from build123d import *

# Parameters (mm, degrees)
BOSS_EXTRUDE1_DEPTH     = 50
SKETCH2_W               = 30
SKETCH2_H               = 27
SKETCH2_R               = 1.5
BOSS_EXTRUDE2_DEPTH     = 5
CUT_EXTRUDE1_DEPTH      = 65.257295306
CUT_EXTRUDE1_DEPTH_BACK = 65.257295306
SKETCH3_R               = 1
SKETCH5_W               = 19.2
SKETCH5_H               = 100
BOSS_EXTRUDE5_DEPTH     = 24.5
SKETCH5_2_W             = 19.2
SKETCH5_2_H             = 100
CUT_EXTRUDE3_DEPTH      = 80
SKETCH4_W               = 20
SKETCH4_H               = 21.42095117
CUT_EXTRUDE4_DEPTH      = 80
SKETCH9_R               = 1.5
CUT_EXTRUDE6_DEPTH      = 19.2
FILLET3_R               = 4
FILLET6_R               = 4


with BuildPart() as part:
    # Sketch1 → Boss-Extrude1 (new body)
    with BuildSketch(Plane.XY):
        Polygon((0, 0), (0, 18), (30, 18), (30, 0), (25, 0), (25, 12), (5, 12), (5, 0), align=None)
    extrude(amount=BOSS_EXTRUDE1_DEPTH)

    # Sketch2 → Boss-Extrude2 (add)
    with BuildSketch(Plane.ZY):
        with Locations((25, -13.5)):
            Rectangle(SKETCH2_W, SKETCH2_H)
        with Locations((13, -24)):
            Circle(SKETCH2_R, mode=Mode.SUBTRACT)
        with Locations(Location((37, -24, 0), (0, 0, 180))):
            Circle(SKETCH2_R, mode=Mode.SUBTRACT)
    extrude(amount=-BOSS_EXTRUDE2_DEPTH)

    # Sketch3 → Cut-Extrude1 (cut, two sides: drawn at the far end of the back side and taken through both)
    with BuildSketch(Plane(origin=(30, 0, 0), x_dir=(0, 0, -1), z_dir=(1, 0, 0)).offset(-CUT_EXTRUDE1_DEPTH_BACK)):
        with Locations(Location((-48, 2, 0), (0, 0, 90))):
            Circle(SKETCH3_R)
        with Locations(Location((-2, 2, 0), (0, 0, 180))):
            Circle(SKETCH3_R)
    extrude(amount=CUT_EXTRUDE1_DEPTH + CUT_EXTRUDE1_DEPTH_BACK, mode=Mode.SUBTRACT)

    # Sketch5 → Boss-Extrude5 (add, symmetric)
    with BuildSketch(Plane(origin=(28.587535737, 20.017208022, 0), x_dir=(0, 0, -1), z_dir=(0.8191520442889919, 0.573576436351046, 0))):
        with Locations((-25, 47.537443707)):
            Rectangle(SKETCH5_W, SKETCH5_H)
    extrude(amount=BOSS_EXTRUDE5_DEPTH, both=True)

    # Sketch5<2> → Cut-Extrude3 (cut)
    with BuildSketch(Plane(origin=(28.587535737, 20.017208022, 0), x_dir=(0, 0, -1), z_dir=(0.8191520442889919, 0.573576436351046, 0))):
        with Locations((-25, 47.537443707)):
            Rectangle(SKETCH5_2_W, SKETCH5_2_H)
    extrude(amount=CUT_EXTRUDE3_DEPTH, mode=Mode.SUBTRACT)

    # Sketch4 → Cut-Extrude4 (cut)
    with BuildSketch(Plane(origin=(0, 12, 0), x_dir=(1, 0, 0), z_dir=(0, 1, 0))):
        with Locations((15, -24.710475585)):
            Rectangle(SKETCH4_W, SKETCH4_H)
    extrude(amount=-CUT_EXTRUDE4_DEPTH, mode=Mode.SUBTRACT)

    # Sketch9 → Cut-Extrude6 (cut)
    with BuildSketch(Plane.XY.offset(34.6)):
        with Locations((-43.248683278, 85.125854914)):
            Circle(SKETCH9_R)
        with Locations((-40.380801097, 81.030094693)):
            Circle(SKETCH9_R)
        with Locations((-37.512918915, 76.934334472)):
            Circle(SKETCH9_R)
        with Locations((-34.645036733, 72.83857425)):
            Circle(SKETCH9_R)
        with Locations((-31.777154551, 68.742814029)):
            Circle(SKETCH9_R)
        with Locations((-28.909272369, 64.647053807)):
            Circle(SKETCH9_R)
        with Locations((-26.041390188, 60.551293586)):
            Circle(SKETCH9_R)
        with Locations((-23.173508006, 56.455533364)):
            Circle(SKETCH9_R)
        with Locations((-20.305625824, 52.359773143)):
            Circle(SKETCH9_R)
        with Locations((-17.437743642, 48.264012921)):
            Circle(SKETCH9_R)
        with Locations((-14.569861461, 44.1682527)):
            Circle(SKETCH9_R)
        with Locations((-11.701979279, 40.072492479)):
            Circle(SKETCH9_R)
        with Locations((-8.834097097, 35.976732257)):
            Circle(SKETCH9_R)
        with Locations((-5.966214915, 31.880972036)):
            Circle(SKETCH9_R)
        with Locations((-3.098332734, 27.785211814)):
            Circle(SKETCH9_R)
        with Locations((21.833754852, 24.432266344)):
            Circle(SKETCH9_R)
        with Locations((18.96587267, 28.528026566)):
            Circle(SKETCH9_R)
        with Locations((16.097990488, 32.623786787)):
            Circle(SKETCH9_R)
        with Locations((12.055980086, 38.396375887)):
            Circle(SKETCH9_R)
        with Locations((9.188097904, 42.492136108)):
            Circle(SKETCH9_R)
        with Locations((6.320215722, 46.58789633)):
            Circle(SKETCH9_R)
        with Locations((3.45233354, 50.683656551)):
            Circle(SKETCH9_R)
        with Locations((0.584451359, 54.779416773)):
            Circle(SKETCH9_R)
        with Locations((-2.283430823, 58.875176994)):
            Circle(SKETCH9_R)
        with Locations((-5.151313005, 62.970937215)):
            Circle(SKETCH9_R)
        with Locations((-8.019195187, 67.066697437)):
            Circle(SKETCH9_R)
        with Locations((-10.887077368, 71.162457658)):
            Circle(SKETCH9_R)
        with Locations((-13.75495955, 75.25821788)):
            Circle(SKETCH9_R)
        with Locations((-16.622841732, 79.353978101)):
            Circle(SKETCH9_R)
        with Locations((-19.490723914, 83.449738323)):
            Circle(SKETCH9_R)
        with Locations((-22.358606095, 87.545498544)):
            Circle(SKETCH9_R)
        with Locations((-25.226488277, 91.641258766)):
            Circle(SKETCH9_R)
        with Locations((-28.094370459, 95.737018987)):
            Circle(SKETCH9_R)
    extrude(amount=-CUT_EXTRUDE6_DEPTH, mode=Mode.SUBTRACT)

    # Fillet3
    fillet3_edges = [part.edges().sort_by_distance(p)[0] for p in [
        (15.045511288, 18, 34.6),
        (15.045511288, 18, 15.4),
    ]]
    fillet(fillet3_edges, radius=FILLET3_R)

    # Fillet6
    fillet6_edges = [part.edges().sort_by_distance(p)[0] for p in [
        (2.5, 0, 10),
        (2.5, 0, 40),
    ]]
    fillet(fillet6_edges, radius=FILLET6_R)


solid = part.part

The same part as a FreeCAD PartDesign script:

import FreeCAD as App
import Part
import Sketcher


def edges_at(feature, points):
    """Names of the edges that pass closest to the given points."""
    edges = feature.Shape.Edges
    near = lambda p: min(range(len(edges)), key=lambda i: edges[i].distToShape(Part.Vertex(*p))[0])
    return sorted({f"Edge{near(p) + 1}" for p in points})


def add_polygon(sketch, points):
    """Adds a closed chain of lines whose ends are joined by coincident constraints."""
    first, n = sketch.GeometryCount, len(points)
    for a, b in zip(points, points[1:] + points[:1]):
        sketch.addGeometry(Part.LineSegment(App.Vector(*a, 0), App.Vector(*b, 0)), False)
    for i in range(n):
        sketch.addConstraint(Sketcher.Constraint("Coincident", first + i, 2, first + (i + 1) % n, 1))

doc = App.newDocument("Part")
body = doc.addObject("PartDesign::Body", "Body")

# Sketch on XY plane
sketch1 = body.newObject("Sketcher::SketchObject", "Sketch")
sketch1.AttachmentSupport = (doc.getObject("XY_Plane"), [""])
sketch1.MapMode = "FlatFace"
add_polygon(sketch1, [(0, 18), (0, 0), (5, 0), (5, 12), (25, 12), (25, 0), (30, 0), (30, 18)])  # lines 0-7
sketch1.addConstraint(Sketcher.Constraint("Vertical", 0))
sketch1.addConstraint(Sketcher.Constraint("Horizontal", 1))
sketch1.addConstraint(Sketcher.Constraint("Vertical", 2))
sketch1.addConstraint(Sketcher.Constraint("Horizontal", 3))
sketch1.addConstraint(Sketcher.Constraint("Vertical", 4))
sketch1.addConstraint(Sketcher.Constraint("Horizontal", 5))
sketch1.addConstraint(Sketcher.Constraint("Vertical", 6))
sketch1.addConstraint(Sketcher.Constraint("Horizontal", 7))
sketch1.addConstraint(Sketcher.Constraint("Coincident", 0, 2, -1, 1))
sketch1.addConstraint(Sketcher.Constraint("PointOnObject", 4, 2, -1))
sketch1.addConstraint(Sketcher.Constraint("Equal", 1, 5))
sketch1.addConstraint(Sketcher.Constraint("DistanceX", 1, 1, 1, 2, 5.0))
sketch1.addConstraint(Sketcher.Constraint("DistanceX", 3, 1, 3, 2, 20.0))
sketch1.addConstraint(Sketcher.Constraint("DistanceY", 0, 2, 0, 1, 18.0))
sketch1.addConstraint(Sketcher.Constraint("DistanceY", 2, 1, 2, 2, 12.0))
pad1 = body.newObject("PartDesign::Pad", "Pad")
pad1.Profile = sketch1
pad1.Length = 50

# Sketch on YZ plane
sketch2 = body.newObject("Sketcher::SketchObject", "Sketch001")
sketch2.AttachmentSupport = (doc.getObject("YZ_Plane"), [""])
sketch2.MapMode = "FlatFace"
add_polygon(sketch2, [(0, 10), (-27, 10), (-27, 40), (0, 40)])  # lines 0-3
sketch2.addGeometry(Part.Circle(App.Vector(-24, 13, 0), App.Vector(0, 0, 1), 1.5), False)  # 4
sketch2.addGeometry(Part.Circle(App.Vector(-24, 37, 0), App.Vector(0, 0, 1), 1.5), False)  # 5
sketch2.addConstraint(Sketcher.Constraint("Horizontal", 0))
sketch2.addConstraint(Sketcher.Constraint("Vertical", 1))
sketch2.addConstraint(Sketcher.Constraint("Horizontal", 2))
sketch2.addConstraint(Sketcher.Constraint("Vertical", 3))
sketch2.addConstraint(Sketcher.Constraint("Equal", 4, 5))
sketch2.addConstraint(Sketcher.Constraint("PointOnObject", 2, 2, -2))
sketch2.addConstraint(Sketcher.Constraint("Vertical", 4, 3, 5, 3))
sketch2.addConstraint(Sketcher.Constraint("Diameter", 4, 3.0))
sketch2.addConstraint(Sketcher.Constraint("DistanceX", 0, 2, 0, 1, 27.0))
sketch2.addConstraint(Sketcher.Constraint("DistanceY", 1, 1, 1, 2, 30.0))
sketch2.addConstraint(Sketcher.Constraint("DistanceX", 4, 3, -1, 1, 24.0))
sketch2.addConstraint(Sketcher.Constraint("DistanceY", -1, 1, 4, 3, 13.0))
sketch2.addConstraint(Sketcher.Constraint("DistanceY", -1, 1, 5, 3, 37.0))
sketch2.addConstraint(Sketcher.Constraint("DistanceY", -1, 1, 0, 2, 10.0))
pad2 = body.newObject("PartDesign::Pad", "Pad001")
pad2.Profile = sketch2
pad2.Length = 5

# Sketch on YZ plane
sketch3 = body.newObject("Sketcher::SketchObject", "Sketch002")
sketch3.AttachmentSupport = (doc.getObject("YZ_Plane"), [""])
sketch3.MapMode = "FlatFace"
sketch3.AttachmentOffset = App.Placement(App.Vector(0, 0, 30), App.Rotation())
sketch3.addGeometry(Part.Circle(App.Vector(2, 48, 0), App.Vector(0, 0, 1), 1), False)
sketch3.addGeometry(Part.Circle(App.Vector(2, 2, 0), App.Vector(0, 0, 1), 1), False)
sketch3.addConstraint(Sketcher.Constraint("Equal", 0, 1))
sketch3.addConstraint(Sketcher.Constraint("Vertical", 0, 3, 1, 3))
sketch3.addConstraint(Sketcher.Constraint("Diameter", 0, 2.0))
sketch3.addConstraint(Sketcher.Constraint("DistanceX", -1, 1, 0, 3, 2.0))
sketch3.addConstraint(Sketcher.Constraint("DistanceY", -1, 1, 0, 3, 48.0))
sketch3.addConstraint(Sketcher.Constraint("DistanceY", -1, 1, 1, 3, 2.0))
pocket1 = body.newObject("PartDesign::Pocket", "Pocket")
pocket1.Profile = sketch3
pocket1.Type = "ThroughAll"
pocket1.Midplane = True

# Sketch on an angled plane
sketch4 = body.newObject("Sketcher::SketchObject", "Sketch003")
sketch4.Placement = App.Placement(App.Vector(28.587536, 20.017208, 0), App.Rotation(App.Vector(0, 0, -1), App.Vector(-0.573576436, 0.819152044, 0), App.Vector(0.819152044, 0.573576436, 0), "ZXY"))
add_polygon(sketch4, [(-35, 98), (-35, -2), (-15, -2), (-15, 98)])  # lines 0-3
sketch4.addConstraint(Sketcher.Constraint("Vertical", 0))
sketch4.addConstraint(Sketcher.Constraint("Horizontal", 1))
sketch4.addConstraint(Sketcher.Constraint("Vertical", 2))
sketch4.addConstraint(Sketcher.Constraint("Horizontal", 3))
sketch4.addConstraint(Sketcher.Constraint("DistanceY", 0, 2, 0, 1, 100.0))
sketch4.addConstraint(Sketcher.Constraint("DistanceX", 1, 1, 1, 2, 19.2))
sketch4.addConstraint(Sketcher.Constraint("DistanceX", 0, 2, -1, 1, 34.6))
sketch4.addConstraint(Sketcher.Constraint("DistanceY", 0, 2, -1, 1, 2.462556))
pad3 = body.newObject("PartDesign::Pad", "Pad002")
pad3.Profile = sketch4
pad3.Length = 49
pad3.Midplane = True

# Sketch on an angled plane
sketch5 = body.newObject("Sketcher::SketchObject", "Sketch004")
sketch5.Placement = App.Placement(App.Vector(28.587536, 20.017208, 0), App.Rotation(App.Vector(0, 0, -1), App.Vector(-0.573576436, 0.819152044, 0), App.Vector(0.819152044, 0.573576436, 0), "ZXY"))
add_polygon(sketch5, [(-35, 98), (-35, -2), (-15, -2), (-15, 98)])  # lines 0-3
sketch5.addConstraint(Sketcher.Constraint("Vertical", 0))
sketch5.addConstraint(Sketcher.Constraint("Horizontal", 1))
sketch5.addConstraint(Sketcher.Constraint("Vertical", 2))
sketch5.addConstraint(Sketcher.Constraint("Horizontal", 3))
sketch5.addConstraint(Sketcher.Constraint("DistanceY", 0, 2, 0, 1, 100.0))
sketch5.addConstraint(Sketcher.Constraint("DistanceX", 1, 1, 1, 2, 19.2))
sketch5.addConstraint(Sketcher.Constraint("DistanceX", 0, 2, -1, 1, 34.6))
sketch5.addConstraint(Sketcher.Constraint("DistanceY", 0, 2, -1, 1, 2.462556))
pocket2 = body.newObject("PartDesign::Pocket", "Pocket001")
pocket2.Profile = sketch5
pocket2.Length = 80
pocket2.Reversed = True

# Sketch on XZ plane
sketch6 = body.newObject("Sketcher::SketchObject", "Sketch005")
sketch6.AttachmentSupport = (doc.getObject("XZ_Plane"), [""])
sketch6.MapMode = "FlatFace"
sketch6.AttachmentOffset = App.Placement(App.Vector(0, 0, -12), App.Rotation())
add_polygon(sketch6, [(5, 14), (5, 35), (25, 35), (25, 14)])  # lines 0-3
sketch6.addConstraint(Sketcher.Constraint("Vertical", 0))
sketch6.addConstraint(Sketcher.Constraint("Horizontal", 1))
sketch6.addConstraint(Sketcher.Constraint("Vertical", 2))
sketch6.addConstraint(Sketcher.Constraint("Horizontal", 3))
sketch6.addConstraint(Sketcher.Constraint("DistanceX", 1, 1, 1, 2, 20.0))
sketch6.addConstraint(Sketcher.Constraint("DistanceX", -1, 1, 0, 2, 5.0))
sketch6.addConstraint(Sketcher.Constraint("DistanceY", -1, 1, 2, 2, 14.0))
sketch6.addConstraint(Sketcher.Constraint("DistanceY", 0, 1, 0, 2, 21.420951))
pocket3 = body.newObject("PartDesign::Pocket", "Pocket002")
pocket3.Profile = sketch6
pocket3.Length = 80
pocket3.Reversed = True

# Sketch on XY plane
sketch7 = body.newObject("Sketcher::SketchObject", "Sketch006")
sketch7.AttachmentSupport = (doc.getObject("XY_Plane"), [""])
sketch7.MapMode = "FlatFace"
sketch7.AttachmentOffset = App.Placement(App.Vector(0, 0, 34.6), App.Rotation())
sketch7.addGeometry(Part.Circle(App.Vector(-43.2, 85.1, 0), App.Vector(0, 0, 1), 1.5), False)
sketch7.addGeometry(Part.Circle(App.Vector(-40.4, 81, 0), App.Vector(0, 0, 1), 1.5), False)
sketch7.addGeometry(Part.Circle(App.Vector(-37.5, 76.9, 0), App.Vector(0, 0, 1), 1.5), False)
sketch7.addGeometry(Part.Circle(App.Vector(-34.6, 72.8, 0), App.Vector(0, 0, 1), 1.5), False)
sketch7.addGeometry(Part.Circle(App.Vector(-31.8, 68.7, 0), App.Vector(0, 0, 1), 1.5), False)
sketch7.addGeometry(Part.Circle(App.Vector(-28.9, 64.6, 0), App.Vector(0, 0, 1), 1.5), False)
sketch7.addGeometry(Part.Circle(App.Vector(-26, 60.6, 0), App.Vector(0, 0, 1), 1.5), False)
sketch7.addGeometry(Part.Circle(App.Vector(-23.2, 56.5, 0), App.Vector(0, 0, 1), 1.5), False)
sketch7.addGeometry(Part.Circle(App.Vector(-20.3, 52.4, 0), App.Vector(0, 0, 1), 1.5), False)
sketch7.addGeometry(Part.Circle(App.Vector(-17.4, 48.3, 0), App.Vector(0, 0, 1), 1.5), False)
sketch7.addGeometry(Part.Circle(App.Vector(-14.6, 44.2, 0), App.Vector(0, 0, 1), 1.5), False)
sketch7.addGeometry(Part.Circle(App.Vector(-11.7, 40.1, 0), App.Vector(0, 0, 1), 1.5), False)
sketch7.addGeometry(Part.Circle(App.Vector(-8.8, 36, 0), App.Vector(0, 0, 1), 1.5), False)
sketch7.addGeometry(Part.Circle(App.Vector(-6, 31.9, 0), App.Vector(0, 0, 1), 1.5), False)
sketch7.addGeometry(Part.Circle(App.Vector(-3.1, 27.8, 0), App.Vector(0, 0, 1), 1.5), False)
sketch7.addGeometry(Part.Circle(App.Vector(21.8, 24.4, 0), App.Vector(0, 0, 1), 1.5), False)
sketch7.addGeometry(Part.Circle(App.Vector(19, 28.5, 0), App.Vector(0, 0, 1), 1.5), False)
sketch7.addGeometry(Part.Circle(App.Vector(16.1, 32.6, 0), App.Vector(0, 0, 1), 1.5), False)
sketch7.addGeometry(Part.Circle(App.Vector(12.1, 38.4, 0), App.Vector(0, 0, 1), 1.5), False)
sketch7.addGeometry(Part.Circle(App.Vector(9.2, 42.5, 0), App.Vector(0, 0, 1), 1.5), False)
sketch7.addGeometry(Part.Circle(App.Vector(6.3, 46.6, 0), App.Vector(0, 0, 1), 1.5), False)
sketch7.addGeometry(Part.Circle(App.Vector(3.5, 50.7, 0), App.Vector(0, 0, 1), 1.5), False)
sketch7.addGeometry(Part.Circle(App.Vector(0.6, 54.8, 0), App.Vector(0, 0, 1), 1.5), False)
sketch7.addGeometry(Part.Circle(App.Vector(-2.3, 58.9, 0), App.Vector(0, 0, 1), 1.5), False)
sketch7.addGeometry(Part.Circle(App.Vector(-5.2, 63, 0), App.Vector(0, 0, 1), 1.5), False)
sketch7.addGeometry(Part.Circle(App.Vector(-8, 67.1, 0), App.Vector(0, 0, 1), 1.5), False)
sketch7.addGeometry(Part.Circle(App.Vector(-10.9, 71.2, 0), App.Vector(0, 0, 1), 1.5), False)
sketch7.addGeometry(Part.Circle(App.Vector(-13.8, 75.3, 0), App.Vector(0, 0, 1), 1.5), False)
sketch7.addGeometry(Part.Circle(App.Vector(-16.6, 79.4, 0), App.Vector(0, 0, 1), 1.5), False)
sketch7.addGeometry(Part.Circle(App.Vector(-19.5, 83.4, 0), App.Vector(0, 0, 1), 1.5), False)
sketch7.addGeometry(Part.Circle(App.Vector(-22.4, 87.5, 0), App.Vector(0, 0, 1), 1.5), False)
sketch7.addGeometry(Part.Circle(App.Vector(-25.2, 91.6, 0), App.Vector(0, 0, 1), 1.5), False)
sketch7.addGeometry(Part.Circle(App.Vector(-28.1, 95.7, 0), App.Vector(0, 0, 1), 1.5), False)
sketch7.addConstraint(Sketcher.Constraint("Equal", 0, 1))
sketch7.addConstraint(Sketcher.Constraint("Equal", 1, 2))
sketch7.addConstraint(Sketcher.Constraint("Equal", 2, 3))
sketch7.addConstraint(Sketcher.Constraint("Equal", 3, 4))
sketch7.addConstraint(Sketcher.Constraint("Equal", 4, 5))
sketch7.addConstraint(Sketcher.Constraint("Equal", 5, 6))
sketch7.addConstraint(Sketcher.Constraint("Equal", 6, 7))
sketch7.addConstraint(Sketcher.Constraint("Equal", 7, 8))
sketch7.addConstraint(Sketcher.Constraint("Equal", 8, 9))
sketch7.addConstraint(Sketcher.Constraint("Equal", 9, 10))
sketch7.addConstraint(Sketcher.Constraint("Equal", 10, 11))
sketch7.addConstraint(Sketcher.Constraint("Equal", 11, 12))
sketch7.addConstraint(Sketcher.Constraint("Equal", 12, 13))
sketch7.addConstraint(Sketcher.Constraint("Equal", 13, 14))
sketch7.addConstraint(Sketcher.Constraint("Equal", 14, 15))
sketch7.addConstraint(Sketcher.Constraint("Equal", 15, 16))
sketch7.addConstraint(Sketcher.Constraint("Equal", 16, 17))
sketch7.addConstraint(Sketcher.Constraint("Equal", 17, 18))
sketch7.addConstraint(Sketcher.Constraint("Equal", 18, 19))
sketch7.addConstraint(Sketcher.Constraint("Equal", 19, 20))
sketch7.addConstraint(Sketcher.Constraint("Equal", 20, 21))
sketch7.addConstraint(Sketcher.Constraint("Equal", 21, 22))
sketch7.addConstraint(Sketcher.Constraint("Equal", 22, 23))
sketch7.addConstraint(Sketcher.Constraint("Equal", 23, 24))
sketch7.addConstraint(Sketcher.Constraint("Equal", 24, 25))
sketch7.addConstraint(Sketcher.Constraint("Equal", 25, 26))
sketch7.addConstraint(Sketcher.Constraint("Equal", 26, 27))
sketch7.addConstraint(Sketcher.Constraint("Equal", 27, 28))
sketch7.addConstraint(Sketcher.Constraint("Equal", 28, 29))
sketch7.addConstraint(Sketcher.Constraint("Equal", 29, 30))
sketch7.addConstraint(Sketcher.Constraint("Equal", 30, 31))
sketch7.addConstraint(Sketcher.Constraint("Equal", 31, 32))
sketch7.addConstraint(Sketcher.Constraint("Diameter", 0, 3.0))
sketch7.addConstraint(Sketcher.Constraint("DistanceX", 1, 3, -1, 1, 40.380801))
sketch7.addConstraint(Sketcher.Constraint("DistanceY", -1, 1, 30, 3, 87.545499))
sketch7.addConstraint(Sketcher.Constraint("DistanceY", 5, 3, 0, 3, 20.478801))
sketch7.addConstraint(Sketcher.Constraint("DistanceY", 6, 3, 1, 3, 20.478801))
sketch7.addConstraint(Sketcher.Constraint("DistanceY", 7, 3, 2, 3, 20.478801))
sketch7.addConstraint(Sketcher.Constraint("DistanceY", 8, 3, 3, 3, 20.478801))
sketch7.addConstraint(Sketcher.Constraint("DistanceY", 9, 3, 4, 3, 20.478801))
sketch7.addConstraint(Sketcher.Constraint("DistanceY", 10, 3, 5, 3, 20.478801))
sketch7.addConstraint(Sketcher.Constraint("DistanceY", 11, 3, 6, 3, 20.478801))
sketch7.addConstraint(Sketcher.Constraint("DistanceY", 12, 3, 7, 3, 20.478801))
sketch7.addConstraint(Sketcher.Constraint("DistanceY", 13, 3, 8, 3, 20.478801))
sketch7.addConstraint(Sketcher.Constraint("DistanceY", 14, 3, 9, 3, 20.478801))
sketch7.addConstraint(Sketcher.Constraint("DistanceX", 2, 3, -1, 1, 37.512919))
sketch7.addConstraint(Sketcher.Constraint("DistanceX", 6, 3, -1, 1, 26.04139))
sketch7.addConstraint(Sketcher.Constraint("DistanceX", 7, 3, -1, 1, 23.173508))
sketch7.addConstraint(Sketcher.Constraint("DistanceX", 10, 3, -1, 1, 14.569861))
sketch7.addConstraint(Sketcher.Constraint("DistanceX", 11, 3, -1, 1, 11.701979))
sketch7.addConstraint(Sketcher.Constraint("DistanceY", -1, 1, 14, 3, 27.785212))
sketch7.addConstraint(Sketcher.Constraint("DistanceX", -1, 1, 17, 3, 16.09799))
sketch7.addConstraint(Sketcher.Constraint("DistanceX", -1, 1, 18, 3, 12.05598))
sketch7.addConstraint(Sketcher.Constraint("DistanceX", -1, 1, 22, 3, 0.584451))
sketch7.addConstraint(Sketcher.Constraint("DistanceX", 23, 3, -1, 1, 2.283431))
sketch7.addConstraint(Sketcher.Constraint("DistanceX", 27, 3, -1, 1, 13.75496))
sketch7.addConstraint(Sketcher.Constraint("DistanceX", 28, 3, -1, 1, 16.622842))
sketch7.addConstraint(Sketcher.Constraint("DistanceY", -1, 1, 28, 3, 79.353978))
sketch7.addConstraint(Sketcher.Constraint("DistanceY", -1, 1, 29, 3, 83.449738))
sketch7.addConstraint(Sketcher.Constraint("DistanceX", 31, 3, -1, 1, 25.226488))
sketch7.addConstraint(Sketcher.Constraint("DistanceY", -1, 1, 31, 3, 91.641259))
sketch7.addConstraint(Sketcher.Constraint("DistanceX", 32, 3, -1, 1, 28.09437))
sketch7.addConstraint(Sketcher.Constraint("DistanceY", -1, 1, 32, 3, 95.737019))
sketch7.addConstraint(Sketcher.Constraint("DistanceY", 1, 3, 0, 3, 4.09576))
sketch7.addConstraint(Sketcher.Constraint("DistanceY", 2, 3, 1, 3, 4.09576))
sketch7.addConstraint(Sketcher.Constraint("DistanceY", 3, 3, 2, 3, 4.09576))
sketch7.addConstraint(Sketcher.Constraint("DistanceY", 4, 3, 3, 3, 4.09576))
sketch7.addConstraint(Sketcher.Constraint("DistanceX", 0, 3, 4, 3, 11.471529))
sketch7.addConstraint(Sketcher.Constraint("DistanceX", 1, 3, 5, 3, 11.471529))
sketch7.addConstraint(Sketcher.Constraint("DistanceX", 0, 3, 5, 3, 14.339411))
sketch7.addConstraint(Sketcher.Constraint("DistanceX", 3, 3, 7, 3, 11.471529))
sketch7.addConstraint(Sketcher.Constraint("DistanceX", 4, 3, 8, 3, 11.471529))
sketch7.addConstraint(Sketcher.Constraint("DistanceX", 5, 3, 9, 3, 11.471529))
sketch7.addConstraint(Sketcher.Constraint("DistanceX", 8, 3, 12, 3, 11.471529))
sketch7.addConstraint(Sketcher.Constraint("DistanceX", 9, 3, 13, 3, 11.471529))
sketch7.addConstraint(Sketcher.Constraint("DistanceX", 10, 3, 14, 3, 11.471529))
sketch7.addConstraint(Sketcher.Constraint("DistanceX", 13, 3, 15, 3, 27.79997))
sketch7.addConstraint(Sketcher.Constraint("DistanceY", 15, 3, 16, 3, 4.09576))
sketch7.addConstraint(Sketcher.Constraint("DistanceX", 12, 3, 16, 3, 27.79997))
sketch7.addConstraint(Sketcher.Constraint("DistanceY", 16, 3, 17, 3, 4.09576))
sketch7.addConstraint(Sketcher.Constraint("DistanceY", 17, 3, 18, 3, 5.772589))
sketch7.addConstraint(Sketcher.Constraint("DistanceY", 18, 3, 19, 3, 4.09576))
sketch7.addConstraint(Sketcher.Constraint("DistanceY", 19, 3, 20, 3, 4.09576))
sketch7.addConstraint(Sketcher.Constraint("DistanceX", 13, 3, 20, 3, 12.286431))
sketch7.addConstraint(Sketcher.Constraint("DistanceY", 20, 3, 21, 3, 4.09576))
sketch7.addConstraint(Sketcher.Constraint("DistanceX", 12, 3, 21, 3, 12.286431))
sketch7.addConstraint(Sketcher.Constraint("DistanceY", 21, 3, 22, 3, 4.09576))
sketch7.addConstraint(Sketcher.Constraint("DistanceY", 22, 3, 23, 3, 4.09576))
sketch7.addConstraint(Sketcher.Constraint("DistanceY", 23, 3, 24, 3, 4.09576))
sketch7.addConstraint(Sketcher.Constraint("DistanceX", 9, 3, 24, 3, 12.286431))
sketch7.addConstraint(Sketcher.Constraint("DistanceY", 24, 3, 25, 3, 4.09576))
sketch7.addConstraint(Sketcher.Constraint("DistanceX", 8, 3, 25, 3, 12.286431))
sketch7.addConstraint(Sketcher.Constraint("DistanceY", 25, 3, 26, 3, 4.09576))
sketch7.addConstraint(Sketcher.Constraint("DistanceY", 26, 3, 27, 3, 4.09576))
sketch7.addConstraint(Sketcher.Constraint("DistanceY", 27, 3, 28, 3, 4.09576))
sketch7.addConstraint(Sketcher.Constraint("DistanceX", 4, 3, 29, 3, 12.286431))
sketch7.addConstraint(Sketcher.Constraint("DistanceX", 3, 3, 30, 3, 12.286431))
sketch7.addConstraint(Sketcher.Constraint("DistanceX", -1, 1, 19, 3, 9.188098))
sketch7.addConstraint(Sketcher.Constraint("DistanceX", 26, 3, -1, 1, 10.887077))
pocket4 = body.newObject("PartDesign::Pocket", "Pocket003")
pocket4.Profile = sketch7
pocket4.Length = 19.2
doc.recompute()

fillet = body.newObject("PartDesign::Fillet", "Fillet")
fillet.Base = (pocket4, edges_at(pocket4, [(15.046, 18, 34.6), (15.046, 18, 15.4)]))
fillet.Radius = 4
doc.recompute()

fillet2 = body.newObject("PartDesign::Fillet", "Fillet001")
fillet2.Base = (fillet, edges_at(fillet, [(2.5, 0, 10), (2.5, 0, 40)]))
fillet2.Radius = 4

doc.recompute()
